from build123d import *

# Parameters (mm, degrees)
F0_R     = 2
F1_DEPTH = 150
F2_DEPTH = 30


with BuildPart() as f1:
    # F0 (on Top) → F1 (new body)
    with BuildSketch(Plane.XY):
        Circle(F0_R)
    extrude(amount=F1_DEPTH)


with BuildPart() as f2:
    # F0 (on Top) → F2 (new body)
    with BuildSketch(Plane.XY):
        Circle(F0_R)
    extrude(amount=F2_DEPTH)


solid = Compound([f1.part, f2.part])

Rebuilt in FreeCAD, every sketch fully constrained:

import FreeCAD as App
import Part
import Sketcher

doc = App.newDocument("Part")
params = doc.addObject("Spreadsheet::Sheet", "Params")
for row, (alias, value) in enumerate([
    ("sketch1_diameter", "4 mm"),
    ("pad1_length", "150 mm"),
    ("sketch2_diameter", "4 mm"),
    ("pad2_length", "30 mm"),
], start=1):
    params.set(f"A{row}", alias)
    params.set(f"B{row}", "=" + value)
    params.setAlias(f"B{row}", alias)

body = doc.addObject("PartDesign::Body", "Body")

sketch1 = body.newObject("Sketcher::SketchObject", "Sketch")
sketch1.AttachmentSupport = (doc.getObject("XY_Plane"), [""])
sketch1.MapMode = "FlatFace"
sketch1.addGeometry(Part.Circle(App.Vector(0, 0, 0), App.Vector(0, 0, 1), 2), False)
sketch1.addConstraint([
    Sketcher.Constraint("Coincident", 0, 3, -1, 1),
    Sketcher.Constraint("Diameter", 0, 4.0),
])
sketch1.setExpression("Constraints[1]", "Params.sketch1_diameter")
pad1 = body.newObject("PartDesign::Pad", "Pad")
pad1.Profile = sketch1
pad1.setExpression("Length", "Params.pad1_length")
body2 = doc.addObject("PartDesign::Body", "Body001")

sketch2 = body2.newObject("Sketcher::SketchObject", "Sketch001")
sketch2.AttachmentSupport = (doc.getObject("XY_Plane001"), [""])
sketch2.MapMode = "FlatFace"
sketch2.addGeometry(Part.Circle(App.Vector(0, 0, 0), App.Vector(0, 0, 1), 2), False)
sketch2.addConstraint([
    Sketcher.Constraint("Coincident", 0, 3, -1, 1),
    Sketcher.Constraint("Diameter", 0, 4.0),
])
sketch2.setExpression("Constraints[1]", "Params.sketch2_diameter")
pad2 = body2.newObject("PartDesign::Pad", "Pad001")
pad2.Profile = sketch2
pad2.setExpression("Length", "Params.pad2_length")

doc.recompute()
